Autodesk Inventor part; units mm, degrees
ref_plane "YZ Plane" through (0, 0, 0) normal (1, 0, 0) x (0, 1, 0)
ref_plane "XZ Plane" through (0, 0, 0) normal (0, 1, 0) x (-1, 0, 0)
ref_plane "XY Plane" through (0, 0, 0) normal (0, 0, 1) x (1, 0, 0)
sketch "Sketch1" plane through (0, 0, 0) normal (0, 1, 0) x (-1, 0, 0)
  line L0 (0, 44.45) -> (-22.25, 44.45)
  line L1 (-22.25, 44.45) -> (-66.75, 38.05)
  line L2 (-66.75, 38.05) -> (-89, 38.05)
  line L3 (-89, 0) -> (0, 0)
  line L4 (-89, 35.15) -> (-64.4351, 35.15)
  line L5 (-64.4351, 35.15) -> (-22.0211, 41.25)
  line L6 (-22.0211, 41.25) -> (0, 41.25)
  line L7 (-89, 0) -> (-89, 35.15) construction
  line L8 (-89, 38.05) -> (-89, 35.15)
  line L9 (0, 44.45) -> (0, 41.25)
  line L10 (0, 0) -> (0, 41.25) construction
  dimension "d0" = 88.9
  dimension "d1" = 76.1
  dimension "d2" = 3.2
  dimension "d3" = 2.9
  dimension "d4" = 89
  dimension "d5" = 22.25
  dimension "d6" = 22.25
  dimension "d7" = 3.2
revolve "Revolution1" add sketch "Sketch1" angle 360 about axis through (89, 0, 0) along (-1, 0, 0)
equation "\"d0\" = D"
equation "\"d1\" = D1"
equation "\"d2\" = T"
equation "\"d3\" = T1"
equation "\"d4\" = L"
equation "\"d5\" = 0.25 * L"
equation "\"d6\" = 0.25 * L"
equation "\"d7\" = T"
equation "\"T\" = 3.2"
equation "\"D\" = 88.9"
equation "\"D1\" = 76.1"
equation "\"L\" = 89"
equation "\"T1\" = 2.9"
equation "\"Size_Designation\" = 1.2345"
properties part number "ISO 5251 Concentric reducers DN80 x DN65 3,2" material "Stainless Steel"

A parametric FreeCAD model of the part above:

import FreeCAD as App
import Part
import Sketcher

V = App.Vector
Q = App.Units.Quantity

doc = App.newDocument("Part")
body = doc.addObject("PartDesign::Body", "Body")

# Sketch on XZ plane
sketch1 = doc.addObject("Sketcher::SketchObject", "Sketch")
body.addObject(sketch1)
sketch1.AttachmentSupport = (doc.XZ_Plane, [""])
sketch1.MapMode = "FlatFace"
sketch1.addGeometry([
    Part.LineSegment(V(0, 41.2, 0), V(0, 44.5, 0)),  # 0
    Part.LineSegment(V(0, 44.5, 0), V(22.2, 44.5, 0)),  # 1
    Part.LineSegment(V(22.2, 44.5, 0), V(66.8, 38, 0)),  # 2
    Part.LineSegment(V(66.8, 38, 0), V(89, 38, 0)),  # 3
    Part.LineSegment(V(89, 38, 0), V(89, 35.1, 0)),  # 4
    Part.LineSegment(V(89, 35.1, 0), V(64.4, 35.1, 0)),  # 5
    Part.LineSegment(V(64.4, 35.1, 0), V(22, 41.2, 0)),  # 6
    Part.LineSegment(V(22, 41.2, 0), V(0, 41.2, 0)),  # 7
], False)
sketch1.addConstraint([
    Sketcher.Constraint("Coincident", 0, 2, 1, 1),
    Sketcher.Constraint("Coincident", 1, 2, 2, 1),
    Sketcher.Constraint("Coincident", 2, 2, 3, 1),
    Sketcher.Constraint("Coincident", 3, 2, 4, 1),
    Sketcher.Constraint("Coincident", 4, 2, 5, 1),
    Sketcher.Constraint("Coincident", 5, 2, 6, 1),
    Sketcher.Constraint("Coincident", 6, 2, 7, 1),
    Sketcher.Constraint("Coincident", 7, 2, 0, 1),
    Sketcher.Constraint("Vertical", 0),
    Sketcher.Constraint("Horizontal", 1),
    Sketcher.Constraint("Horizontal", 3),
    Sketcher.Constraint("Vertical", 4),
    Sketcher.Constraint("Horizontal", 5),
    Sketcher.Constraint("Horizontal", 7),
    Sketcher.Constraint("PointOnObject", 0, 2, -2),
    Sketcher.Constraint("Parallel", 2, 6),
    Sketcher.Constraint("Equal", 1, 3),
    Sketcher.Constraint("DistanceY", 0, 1, 0, 2, Q("3.2 mm")),
    Sketcher.Constraint("DistanceY", 4, 2, 4, 1, Q("2.9 mm")),
    Sketcher.Constraint("DistanceX", -1, 1, 3, 2, Q("89 mm")),
    Sketcher.Constraint("DistanceX", 1, 1, 1, 2, Q("22.25 mm")),
    Sketcher.Constraint("DistanceY", 2, 2, 6, 2, Q("3.2 mm")),
    Sketcher.Constraint("DistanceX", 5, 2, 5, 1, Q("24.565 mm")),
    Sketcher.Constraint("DistanceY", -1, 1, 0, 2, Q("44.45 mm")),
])
revolution = doc.addObject("PartDesign::Revolution", "Revolution")
body.addObject(revolution)
revolution.Profile = sketch1
revolution.ReferenceAxis = (sketch1, ["H_Axis"])
revolution.Angle = 360

doc.recompute()
